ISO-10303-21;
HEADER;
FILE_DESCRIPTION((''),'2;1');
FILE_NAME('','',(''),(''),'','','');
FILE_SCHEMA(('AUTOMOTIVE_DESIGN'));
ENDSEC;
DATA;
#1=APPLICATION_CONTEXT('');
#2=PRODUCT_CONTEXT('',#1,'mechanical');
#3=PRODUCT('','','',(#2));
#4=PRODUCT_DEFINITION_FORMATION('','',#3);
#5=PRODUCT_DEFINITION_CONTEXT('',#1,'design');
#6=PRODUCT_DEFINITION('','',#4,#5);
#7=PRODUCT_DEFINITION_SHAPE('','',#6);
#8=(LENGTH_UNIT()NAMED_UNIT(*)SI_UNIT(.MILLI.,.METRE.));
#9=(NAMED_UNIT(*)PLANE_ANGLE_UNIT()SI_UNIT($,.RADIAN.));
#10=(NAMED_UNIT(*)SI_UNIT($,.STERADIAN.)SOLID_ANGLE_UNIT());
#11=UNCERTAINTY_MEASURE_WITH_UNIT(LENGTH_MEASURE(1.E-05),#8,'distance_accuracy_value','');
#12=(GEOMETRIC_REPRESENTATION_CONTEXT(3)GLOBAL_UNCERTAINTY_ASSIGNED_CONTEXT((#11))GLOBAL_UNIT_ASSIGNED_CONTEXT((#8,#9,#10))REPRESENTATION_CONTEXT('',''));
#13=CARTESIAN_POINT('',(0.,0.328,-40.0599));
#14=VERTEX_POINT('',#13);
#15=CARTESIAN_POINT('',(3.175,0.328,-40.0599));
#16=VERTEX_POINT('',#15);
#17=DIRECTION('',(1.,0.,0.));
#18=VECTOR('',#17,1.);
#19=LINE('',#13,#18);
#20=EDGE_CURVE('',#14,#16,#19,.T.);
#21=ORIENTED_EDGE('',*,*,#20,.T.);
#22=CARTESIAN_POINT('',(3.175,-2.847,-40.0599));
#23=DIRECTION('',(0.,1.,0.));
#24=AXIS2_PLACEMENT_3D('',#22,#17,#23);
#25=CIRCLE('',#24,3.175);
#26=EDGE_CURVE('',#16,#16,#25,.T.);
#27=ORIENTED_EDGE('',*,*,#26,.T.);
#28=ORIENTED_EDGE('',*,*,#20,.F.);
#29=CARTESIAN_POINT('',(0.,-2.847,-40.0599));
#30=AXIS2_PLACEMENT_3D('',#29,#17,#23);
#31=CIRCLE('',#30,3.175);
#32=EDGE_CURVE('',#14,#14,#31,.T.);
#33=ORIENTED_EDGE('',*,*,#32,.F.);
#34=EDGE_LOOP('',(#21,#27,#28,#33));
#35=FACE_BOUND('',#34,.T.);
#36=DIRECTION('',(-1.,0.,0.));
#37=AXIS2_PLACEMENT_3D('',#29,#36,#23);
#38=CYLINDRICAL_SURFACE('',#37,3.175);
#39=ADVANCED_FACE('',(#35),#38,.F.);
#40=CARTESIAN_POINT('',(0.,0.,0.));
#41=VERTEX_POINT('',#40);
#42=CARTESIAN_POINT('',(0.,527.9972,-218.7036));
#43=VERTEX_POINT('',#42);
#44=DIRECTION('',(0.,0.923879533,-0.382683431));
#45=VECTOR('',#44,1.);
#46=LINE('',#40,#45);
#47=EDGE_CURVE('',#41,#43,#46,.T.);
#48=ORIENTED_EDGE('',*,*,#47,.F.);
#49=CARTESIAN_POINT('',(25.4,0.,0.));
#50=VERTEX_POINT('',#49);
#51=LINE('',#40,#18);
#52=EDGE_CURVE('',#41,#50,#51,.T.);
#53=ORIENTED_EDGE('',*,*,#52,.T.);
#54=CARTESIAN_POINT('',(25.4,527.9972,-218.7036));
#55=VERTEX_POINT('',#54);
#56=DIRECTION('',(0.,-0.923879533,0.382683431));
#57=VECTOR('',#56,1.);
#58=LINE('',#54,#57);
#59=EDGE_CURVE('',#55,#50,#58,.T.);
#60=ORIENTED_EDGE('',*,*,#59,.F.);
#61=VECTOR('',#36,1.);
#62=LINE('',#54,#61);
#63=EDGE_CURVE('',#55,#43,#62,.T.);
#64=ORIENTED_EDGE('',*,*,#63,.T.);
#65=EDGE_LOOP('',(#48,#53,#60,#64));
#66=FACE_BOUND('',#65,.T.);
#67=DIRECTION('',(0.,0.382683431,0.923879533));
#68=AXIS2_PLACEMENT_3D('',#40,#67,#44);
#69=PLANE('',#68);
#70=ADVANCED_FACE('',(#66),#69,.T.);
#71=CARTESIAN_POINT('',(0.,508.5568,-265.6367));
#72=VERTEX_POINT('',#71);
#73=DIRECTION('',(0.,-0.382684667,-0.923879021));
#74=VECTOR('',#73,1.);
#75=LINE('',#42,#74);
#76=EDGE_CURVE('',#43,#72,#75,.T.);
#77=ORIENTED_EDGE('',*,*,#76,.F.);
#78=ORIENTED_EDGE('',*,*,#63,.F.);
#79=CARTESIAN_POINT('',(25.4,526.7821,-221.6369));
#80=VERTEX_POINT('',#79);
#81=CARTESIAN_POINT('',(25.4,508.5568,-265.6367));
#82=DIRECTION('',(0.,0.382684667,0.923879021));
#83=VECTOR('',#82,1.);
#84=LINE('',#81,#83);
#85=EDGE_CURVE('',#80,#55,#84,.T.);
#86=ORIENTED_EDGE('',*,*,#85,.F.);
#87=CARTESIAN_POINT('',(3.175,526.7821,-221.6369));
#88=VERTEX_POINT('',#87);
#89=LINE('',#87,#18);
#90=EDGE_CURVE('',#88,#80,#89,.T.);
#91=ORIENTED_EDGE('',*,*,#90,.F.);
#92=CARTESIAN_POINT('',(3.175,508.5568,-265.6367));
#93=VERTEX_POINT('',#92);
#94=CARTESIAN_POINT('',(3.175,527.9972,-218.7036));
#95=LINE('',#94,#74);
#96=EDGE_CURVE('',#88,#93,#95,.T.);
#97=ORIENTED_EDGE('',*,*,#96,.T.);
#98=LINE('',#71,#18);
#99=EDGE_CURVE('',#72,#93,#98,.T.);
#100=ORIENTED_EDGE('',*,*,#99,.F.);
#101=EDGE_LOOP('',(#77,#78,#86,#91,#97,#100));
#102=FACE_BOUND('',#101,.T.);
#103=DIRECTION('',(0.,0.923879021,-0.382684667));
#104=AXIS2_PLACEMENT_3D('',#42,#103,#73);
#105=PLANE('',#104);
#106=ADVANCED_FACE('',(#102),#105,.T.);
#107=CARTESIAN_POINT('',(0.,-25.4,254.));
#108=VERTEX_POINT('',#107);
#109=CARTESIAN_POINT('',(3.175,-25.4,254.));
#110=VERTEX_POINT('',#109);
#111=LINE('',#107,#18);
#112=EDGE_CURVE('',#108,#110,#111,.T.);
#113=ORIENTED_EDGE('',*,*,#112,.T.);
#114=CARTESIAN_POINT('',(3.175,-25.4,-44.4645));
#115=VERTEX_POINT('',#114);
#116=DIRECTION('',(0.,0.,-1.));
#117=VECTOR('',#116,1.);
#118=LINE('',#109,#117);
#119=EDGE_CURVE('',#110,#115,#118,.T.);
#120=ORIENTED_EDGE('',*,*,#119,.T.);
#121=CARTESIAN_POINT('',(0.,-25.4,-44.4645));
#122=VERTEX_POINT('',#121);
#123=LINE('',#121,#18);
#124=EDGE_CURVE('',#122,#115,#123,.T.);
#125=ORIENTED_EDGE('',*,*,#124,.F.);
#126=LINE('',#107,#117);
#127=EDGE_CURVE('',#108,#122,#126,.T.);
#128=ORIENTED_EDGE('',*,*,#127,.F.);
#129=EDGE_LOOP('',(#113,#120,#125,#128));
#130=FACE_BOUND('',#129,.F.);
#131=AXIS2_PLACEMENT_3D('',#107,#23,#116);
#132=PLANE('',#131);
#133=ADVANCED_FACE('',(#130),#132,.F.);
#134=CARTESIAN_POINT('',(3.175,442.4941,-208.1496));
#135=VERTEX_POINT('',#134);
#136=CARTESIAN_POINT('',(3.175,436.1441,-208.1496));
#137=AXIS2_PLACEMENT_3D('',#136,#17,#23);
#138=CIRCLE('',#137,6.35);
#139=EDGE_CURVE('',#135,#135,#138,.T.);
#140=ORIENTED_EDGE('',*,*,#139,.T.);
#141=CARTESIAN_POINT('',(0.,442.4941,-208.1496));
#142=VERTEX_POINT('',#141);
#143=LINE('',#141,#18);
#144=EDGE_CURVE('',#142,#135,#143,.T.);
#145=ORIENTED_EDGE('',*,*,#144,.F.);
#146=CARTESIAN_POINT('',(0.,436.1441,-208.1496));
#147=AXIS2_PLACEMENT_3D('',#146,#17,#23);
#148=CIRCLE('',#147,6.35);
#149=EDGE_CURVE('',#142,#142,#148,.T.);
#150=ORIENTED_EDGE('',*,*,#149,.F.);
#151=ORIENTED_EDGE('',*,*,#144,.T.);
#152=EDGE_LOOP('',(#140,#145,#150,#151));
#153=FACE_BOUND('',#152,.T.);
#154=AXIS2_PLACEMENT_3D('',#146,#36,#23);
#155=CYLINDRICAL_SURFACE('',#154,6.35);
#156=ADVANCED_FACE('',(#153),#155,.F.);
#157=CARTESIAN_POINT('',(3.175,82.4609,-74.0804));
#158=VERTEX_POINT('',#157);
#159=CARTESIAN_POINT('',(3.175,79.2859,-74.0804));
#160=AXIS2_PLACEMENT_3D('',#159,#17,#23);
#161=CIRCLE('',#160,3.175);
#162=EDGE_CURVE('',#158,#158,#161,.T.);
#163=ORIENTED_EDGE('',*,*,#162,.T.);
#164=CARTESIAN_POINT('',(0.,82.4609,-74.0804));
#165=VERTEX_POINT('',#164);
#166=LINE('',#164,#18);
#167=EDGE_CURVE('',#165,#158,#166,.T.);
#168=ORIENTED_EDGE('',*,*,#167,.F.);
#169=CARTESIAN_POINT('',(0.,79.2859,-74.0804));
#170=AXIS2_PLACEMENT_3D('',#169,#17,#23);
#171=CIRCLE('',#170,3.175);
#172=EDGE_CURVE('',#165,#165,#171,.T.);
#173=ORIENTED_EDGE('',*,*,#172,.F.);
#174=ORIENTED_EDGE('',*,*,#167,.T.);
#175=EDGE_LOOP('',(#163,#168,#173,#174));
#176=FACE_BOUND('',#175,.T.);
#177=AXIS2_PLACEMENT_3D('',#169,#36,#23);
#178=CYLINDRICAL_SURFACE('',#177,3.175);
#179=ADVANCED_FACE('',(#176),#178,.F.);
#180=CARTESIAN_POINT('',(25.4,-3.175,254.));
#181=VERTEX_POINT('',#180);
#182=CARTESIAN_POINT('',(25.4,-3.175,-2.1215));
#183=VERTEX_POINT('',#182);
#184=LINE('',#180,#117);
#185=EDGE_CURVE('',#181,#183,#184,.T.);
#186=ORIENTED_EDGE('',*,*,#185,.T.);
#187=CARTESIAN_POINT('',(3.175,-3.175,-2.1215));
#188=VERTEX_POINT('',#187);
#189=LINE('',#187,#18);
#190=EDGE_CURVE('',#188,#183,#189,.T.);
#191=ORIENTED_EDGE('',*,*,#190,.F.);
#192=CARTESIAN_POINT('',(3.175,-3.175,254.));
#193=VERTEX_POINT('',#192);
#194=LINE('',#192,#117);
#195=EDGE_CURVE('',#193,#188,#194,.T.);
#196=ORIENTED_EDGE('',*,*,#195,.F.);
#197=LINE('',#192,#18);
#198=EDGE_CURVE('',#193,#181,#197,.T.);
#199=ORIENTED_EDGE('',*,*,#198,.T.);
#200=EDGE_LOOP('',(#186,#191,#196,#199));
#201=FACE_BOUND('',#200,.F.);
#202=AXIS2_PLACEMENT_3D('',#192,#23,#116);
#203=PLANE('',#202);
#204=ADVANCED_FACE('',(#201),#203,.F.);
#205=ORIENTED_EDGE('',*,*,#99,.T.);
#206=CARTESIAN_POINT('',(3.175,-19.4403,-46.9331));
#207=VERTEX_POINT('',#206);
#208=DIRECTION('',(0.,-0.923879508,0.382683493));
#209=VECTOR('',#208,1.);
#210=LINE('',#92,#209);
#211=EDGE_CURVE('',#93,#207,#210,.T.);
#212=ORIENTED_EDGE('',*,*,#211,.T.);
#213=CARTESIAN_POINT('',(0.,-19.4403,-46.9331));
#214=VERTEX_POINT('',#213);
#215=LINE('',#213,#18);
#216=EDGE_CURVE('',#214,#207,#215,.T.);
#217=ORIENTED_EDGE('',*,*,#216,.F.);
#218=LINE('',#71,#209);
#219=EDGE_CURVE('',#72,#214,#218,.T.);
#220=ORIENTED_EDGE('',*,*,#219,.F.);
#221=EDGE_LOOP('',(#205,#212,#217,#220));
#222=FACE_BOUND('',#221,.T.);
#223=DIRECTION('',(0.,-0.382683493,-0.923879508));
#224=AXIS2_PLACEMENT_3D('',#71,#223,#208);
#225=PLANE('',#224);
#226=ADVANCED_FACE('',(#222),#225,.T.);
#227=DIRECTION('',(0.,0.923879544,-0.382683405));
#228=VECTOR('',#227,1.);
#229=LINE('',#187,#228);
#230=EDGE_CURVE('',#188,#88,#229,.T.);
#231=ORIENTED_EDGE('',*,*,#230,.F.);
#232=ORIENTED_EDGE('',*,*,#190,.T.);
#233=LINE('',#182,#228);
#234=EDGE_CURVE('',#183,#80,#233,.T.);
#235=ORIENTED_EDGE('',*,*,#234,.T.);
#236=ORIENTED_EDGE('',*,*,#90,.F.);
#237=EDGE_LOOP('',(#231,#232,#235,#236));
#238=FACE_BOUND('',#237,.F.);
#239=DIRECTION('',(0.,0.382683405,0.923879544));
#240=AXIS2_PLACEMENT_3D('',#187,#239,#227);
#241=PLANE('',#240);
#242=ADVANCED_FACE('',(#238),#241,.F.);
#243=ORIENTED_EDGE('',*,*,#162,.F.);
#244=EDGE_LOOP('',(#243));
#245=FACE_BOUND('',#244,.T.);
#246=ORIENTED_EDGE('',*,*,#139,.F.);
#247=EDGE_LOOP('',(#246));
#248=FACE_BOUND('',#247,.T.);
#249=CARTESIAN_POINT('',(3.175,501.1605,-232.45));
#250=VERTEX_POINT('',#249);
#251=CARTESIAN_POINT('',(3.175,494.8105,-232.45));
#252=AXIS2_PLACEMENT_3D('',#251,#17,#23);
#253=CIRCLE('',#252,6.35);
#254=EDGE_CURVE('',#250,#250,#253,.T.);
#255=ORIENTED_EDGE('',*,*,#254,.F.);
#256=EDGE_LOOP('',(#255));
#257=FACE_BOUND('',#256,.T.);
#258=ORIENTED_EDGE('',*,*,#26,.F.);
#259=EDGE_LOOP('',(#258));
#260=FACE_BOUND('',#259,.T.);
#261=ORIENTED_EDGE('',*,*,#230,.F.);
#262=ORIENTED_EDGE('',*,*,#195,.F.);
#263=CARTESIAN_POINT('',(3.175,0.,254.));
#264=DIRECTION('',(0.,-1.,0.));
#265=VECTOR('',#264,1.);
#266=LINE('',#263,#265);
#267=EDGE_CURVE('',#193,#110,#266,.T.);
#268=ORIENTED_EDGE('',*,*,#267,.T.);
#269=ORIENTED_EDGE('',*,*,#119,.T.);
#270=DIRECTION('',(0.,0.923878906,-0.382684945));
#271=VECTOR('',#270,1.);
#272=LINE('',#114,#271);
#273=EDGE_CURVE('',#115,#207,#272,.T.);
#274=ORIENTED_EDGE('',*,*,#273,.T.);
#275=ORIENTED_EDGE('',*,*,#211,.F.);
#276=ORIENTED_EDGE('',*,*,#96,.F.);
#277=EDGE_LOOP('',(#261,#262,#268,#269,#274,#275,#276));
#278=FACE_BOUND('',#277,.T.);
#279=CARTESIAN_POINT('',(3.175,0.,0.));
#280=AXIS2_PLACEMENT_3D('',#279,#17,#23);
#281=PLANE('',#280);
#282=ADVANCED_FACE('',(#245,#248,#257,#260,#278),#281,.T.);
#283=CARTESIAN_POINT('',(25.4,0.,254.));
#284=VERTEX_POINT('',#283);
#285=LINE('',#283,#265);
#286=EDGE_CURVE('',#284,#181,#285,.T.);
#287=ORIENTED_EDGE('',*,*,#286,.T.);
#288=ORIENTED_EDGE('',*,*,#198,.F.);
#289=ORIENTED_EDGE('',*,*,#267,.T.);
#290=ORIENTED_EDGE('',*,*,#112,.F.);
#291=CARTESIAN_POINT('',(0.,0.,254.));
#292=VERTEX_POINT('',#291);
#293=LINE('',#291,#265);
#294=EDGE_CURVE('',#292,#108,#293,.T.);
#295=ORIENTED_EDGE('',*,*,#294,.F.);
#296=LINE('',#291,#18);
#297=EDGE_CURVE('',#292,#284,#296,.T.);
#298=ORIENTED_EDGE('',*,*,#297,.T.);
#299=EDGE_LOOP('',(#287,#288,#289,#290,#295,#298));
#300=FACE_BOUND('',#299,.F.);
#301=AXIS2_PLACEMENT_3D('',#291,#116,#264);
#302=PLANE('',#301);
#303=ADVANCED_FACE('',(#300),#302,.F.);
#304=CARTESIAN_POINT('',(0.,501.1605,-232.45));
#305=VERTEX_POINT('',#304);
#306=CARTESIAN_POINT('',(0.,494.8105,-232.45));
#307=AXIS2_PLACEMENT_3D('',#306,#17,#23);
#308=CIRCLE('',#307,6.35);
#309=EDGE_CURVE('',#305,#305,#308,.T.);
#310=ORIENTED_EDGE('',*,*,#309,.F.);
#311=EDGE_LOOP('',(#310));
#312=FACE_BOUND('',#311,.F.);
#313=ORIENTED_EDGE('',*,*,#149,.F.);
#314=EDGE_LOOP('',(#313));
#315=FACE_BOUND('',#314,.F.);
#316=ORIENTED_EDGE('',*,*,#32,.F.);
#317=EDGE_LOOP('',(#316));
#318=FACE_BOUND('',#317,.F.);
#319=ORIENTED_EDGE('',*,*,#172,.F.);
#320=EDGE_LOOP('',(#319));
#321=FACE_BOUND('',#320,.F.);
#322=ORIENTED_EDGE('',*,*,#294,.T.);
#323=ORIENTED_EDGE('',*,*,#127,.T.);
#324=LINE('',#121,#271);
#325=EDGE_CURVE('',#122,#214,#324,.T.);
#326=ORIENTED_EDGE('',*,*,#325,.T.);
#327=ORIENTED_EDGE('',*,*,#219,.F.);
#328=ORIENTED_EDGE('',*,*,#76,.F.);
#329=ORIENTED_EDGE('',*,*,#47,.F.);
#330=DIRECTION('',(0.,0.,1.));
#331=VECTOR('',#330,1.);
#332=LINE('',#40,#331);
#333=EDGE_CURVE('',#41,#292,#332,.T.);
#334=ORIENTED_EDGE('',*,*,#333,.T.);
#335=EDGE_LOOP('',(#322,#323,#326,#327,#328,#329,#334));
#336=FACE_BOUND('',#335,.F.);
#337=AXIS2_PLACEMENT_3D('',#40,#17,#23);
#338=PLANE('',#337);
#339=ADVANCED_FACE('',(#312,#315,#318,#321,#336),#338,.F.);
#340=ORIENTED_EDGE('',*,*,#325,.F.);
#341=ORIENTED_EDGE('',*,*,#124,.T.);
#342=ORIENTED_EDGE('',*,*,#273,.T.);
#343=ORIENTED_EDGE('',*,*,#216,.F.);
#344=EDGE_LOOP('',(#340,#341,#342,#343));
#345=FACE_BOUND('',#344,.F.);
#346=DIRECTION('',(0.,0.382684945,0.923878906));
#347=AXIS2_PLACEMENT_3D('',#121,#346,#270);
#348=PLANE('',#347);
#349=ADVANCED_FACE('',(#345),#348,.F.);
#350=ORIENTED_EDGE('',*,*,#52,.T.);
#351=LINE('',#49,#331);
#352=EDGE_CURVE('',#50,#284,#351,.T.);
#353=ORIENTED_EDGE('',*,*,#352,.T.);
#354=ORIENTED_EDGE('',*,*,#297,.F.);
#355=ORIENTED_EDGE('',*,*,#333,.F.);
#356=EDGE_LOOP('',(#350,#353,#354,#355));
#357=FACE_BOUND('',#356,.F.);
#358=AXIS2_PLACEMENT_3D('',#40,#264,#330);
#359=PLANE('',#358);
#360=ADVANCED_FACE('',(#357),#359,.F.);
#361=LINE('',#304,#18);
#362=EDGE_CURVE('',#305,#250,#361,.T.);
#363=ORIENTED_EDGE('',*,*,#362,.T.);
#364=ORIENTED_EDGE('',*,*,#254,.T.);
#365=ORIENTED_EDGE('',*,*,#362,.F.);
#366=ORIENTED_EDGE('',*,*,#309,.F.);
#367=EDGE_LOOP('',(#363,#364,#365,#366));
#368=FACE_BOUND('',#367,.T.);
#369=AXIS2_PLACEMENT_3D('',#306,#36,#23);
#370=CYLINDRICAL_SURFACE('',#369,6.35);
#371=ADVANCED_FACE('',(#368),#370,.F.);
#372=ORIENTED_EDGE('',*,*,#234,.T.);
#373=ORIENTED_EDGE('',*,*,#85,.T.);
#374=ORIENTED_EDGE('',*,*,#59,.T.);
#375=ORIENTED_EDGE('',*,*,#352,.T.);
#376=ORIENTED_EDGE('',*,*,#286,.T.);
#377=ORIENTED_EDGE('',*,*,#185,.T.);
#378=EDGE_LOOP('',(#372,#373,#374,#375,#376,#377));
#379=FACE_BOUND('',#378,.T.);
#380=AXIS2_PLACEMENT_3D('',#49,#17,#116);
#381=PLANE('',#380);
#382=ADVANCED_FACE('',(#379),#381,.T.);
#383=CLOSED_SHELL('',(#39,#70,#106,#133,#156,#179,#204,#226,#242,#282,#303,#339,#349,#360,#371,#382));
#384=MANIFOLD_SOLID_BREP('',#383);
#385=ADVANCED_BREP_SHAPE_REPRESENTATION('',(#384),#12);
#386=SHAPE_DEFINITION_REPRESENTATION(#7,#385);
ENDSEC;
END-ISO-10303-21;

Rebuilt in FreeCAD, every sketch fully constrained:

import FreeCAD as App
import Part
import Sketcher
Q = App.Units.Quantity


def add_polygon(sketch, points):
    """Adds a closed chain of lines whose ends are joined by coincident constraints."""
    first, n = sketch.GeometryCount, len(points)
    for a, b in zip(points, points[1:] + points[:1]):
        sketch.addGeometry(Part.LineSegment(App.Vector(*a, 0), App.Vector(*b, 0)), False)
    for i in range(n):
        sketch.addConstraint(Sketcher.Constraint("Coincident", first + i, 2, first + (i + 1) % n, 1))

doc = App.newDocument("Part")
params = doc.addObject("Spreadsheet::Sheet", "Params")
for row, (alias, value) in enumerate([
    ("sketch1_diameter", "0.5 in"),
    ("sketch1_diameter2", "0.25 in"),
    ("sketch1_width", "1 in"),
    ("sketch1_height", "10 in"),
    ("sketch1_length", "2 in"),
    ("pad1_length", "0.125 in"),
    ("sketch2_width", "0.125 in"),
    ("sketch2_height", "10 in"),
    ("sketch2_length", "0.125 in"),
    ("sketch2_length2", "22.5 in"),
    ("pad2_length", "0.875 in"),
], start=1):
    params.set(f"A{row}", alias)
    params.set(f"B{row}", "=" + value)
    params.setAlias(f"B{row}", alias)

body = doc.addObject("PartDesign::Body", "Body")

# Sketch on YZ plane
sketch1 = body.newObject("Sketcher::SketchObject", "Sketch")
sketch1.AttachmentSupport = (doc.getObject("YZ_Plane"), [""])
sketch1.MapMode = "FlatFace"
add_polygon(sketch1, [(528, -218.7), (0, 0), (0, 254), (-25.4, 254), (-25.4, -44.5), (-19.4, -46.9), (508.6, -265.6)])  # lines 0-6
sketch1.addGeometry(Part.Circle(App.Vector(79.3, -74.1, 0), App.Vector(0, 0, 1), 3.2), False)  # 7
sketch1.addGeometry(Part.Circle(App.Vector(-2.8, -40.1, 0), App.Vector(0, 0, 1), 3.2), False)  # 8
sketch1.addGeometry(Part.Circle(App.Vector(436.1, -208.1, 0), App.Vector(0, 0, 1), 6.3), False)  # 9
sketch1.addGeometry(Part.Circle(App.Vector(494.8, -232.4, 0), App.Vector(0, 0, 1), 6.3), False)  # 10
sketch1.addConstraint([
    Sketcher.Constraint("Vertical", 1),
    Sketcher.Constraint("Horizontal", 2),
    Sketcher.Constraint("Vertical", 3),
    Sketcher.Constraint("Coincident", 0, 2, -1, 1),
    Sketcher.Constraint("Equal", 7, 8),
    Sketcher.Constraint("Equal", 9, 10),
    Sketcher.Constraint("Parallel", 0, 4),
    Sketcher.Constraint("Parallel", 4, 5),
    Sketcher.Constraint("Perpendicular", 5, 6),
    Sketcher.Constraint("Equal", 0, 5),
    Sketcher.Constraint("Diameter", 9, Q("0.5 in")),
    Sketcher.Constraint("Diameter", 7, Q("0.25 in")),
    Sketcher.Constraint("DistanceX", 2, 2, 2, 1, Q("1 in")),
    Sketcher.Constraint("DistanceY", 1, 1, 1, 2, Q("10 in")),
    Sketcher.Constraint("Distance", 6, Q("2 in")),
    Sketcher.Constraint("Distance", 0, Q("22.5 in")),
    Sketcher.Constraint("Angle", 4, Q("-22.5 deg")),
    Sketcher.Constraint("DistanceX", 8, 3, 5, 2, Q("20.134 in")),
    Sketcher.Constraint("DistanceX", -1, 1, 7, 3, Q("3.1215 in")),
    Sketcher.Constraint("DistanceY", 7, 3, 8, 3, Q("1.3394 in")),
    Sketcher.Constraint("DistanceY", 9, 3, 8, 3, Q("6.6177 in")),
    Sketcher.Constraint("DistanceX", 9, 3, 10, 3, Q("2.3097 in")),
    Sketcher.Constraint("DistanceY", 10, 3, 9, 3, Q("0.9567 in")),
    Sketcher.Constraint("DistanceY", 3, 2, 8, 3, Q("0.1734 in")),
    Sketcher.Constraint("DistanceX", 10, 3, 5, 2, Q("0.5412 in")),
])
sketch1.setExpression("Constraints[17]", "Params.sketch1_diameter")
sketch1.setExpression("Constraints[18]", "Params.sketch1_diameter2")
sketch1.setExpression("Constraints[19]", "Params.sketch1_width")
sketch1.setExpression("Constraints[20]", "Params.sketch1_height")
sketch1.setExpression("Constraints[21]", "Params.sketch1_length")
pad1 = body.newObject("PartDesign::Pad", "Pad")
pad1.Profile = sketch1
pad1.setExpression("Length", "Params.pad1_length")

# Sketch on YZ plane
sketch2 = body.newObject("Sketcher::SketchObject", "Sketch001")
sketch2.AttachmentSupport = (doc.getObject("YZ_Plane"), [""])
sketch2.MapMode = "FlatFace"
sketch2.AttachmentOffset = App.Placement(App.Vector(0, 0, 0.125 * 25.4), App.Rotation())
add_polygon(sketch2, [(528, -218.7), (0, 0), (0, 254), (-3.2, 254), (-3.2, -2.1), (526.8, -221.6)])  # lines 0-5
sketch2.addConstraint([
    Sketcher.Constraint("Vertical", 1),
    Sketcher.Constraint("Horizontal", 2),
    Sketcher.Constraint("Vertical", 3),
    Sketcher.Constraint("Coincident", 0, 2, -1, 1),
    Sketcher.Constraint("Parallel", 0, 4),
    Sketcher.Constraint("Perpendicular", 4, 5),
    Sketcher.Constraint("Angle", 4, Q("-22.5 deg")),
    Sketcher.Constraint("DistanceX", 2, 2, 2, 1, Q("0.125 in")),
    Sketcher.Constraint("DistanceY", 1, 1, 1, 2, Q("10 in")),
    Sketcher.Constraint("Distance", 5, Q("0.125 in")),
    Sketcher.Constraint("Distance", 0, Q("22.5 in")),
])
sketch2.setExpression("Constraints[13]", "Params.sketch2_width")
sketch2.setExpression("Constraints[14]", "Params.sketch2_height")
sketch2.setExpression("Constraints[15]", "Params.sketch2_length")
sketch2.setExpression("Constraints[16]", "Params.sketch2_length2")
pad2 = body.newObject("PartDesign::Pad", "Pad001")
pad2.Profile = sketch2
pad2.setExpression("Length", "Params.pad2_length")

doc.recompute()
